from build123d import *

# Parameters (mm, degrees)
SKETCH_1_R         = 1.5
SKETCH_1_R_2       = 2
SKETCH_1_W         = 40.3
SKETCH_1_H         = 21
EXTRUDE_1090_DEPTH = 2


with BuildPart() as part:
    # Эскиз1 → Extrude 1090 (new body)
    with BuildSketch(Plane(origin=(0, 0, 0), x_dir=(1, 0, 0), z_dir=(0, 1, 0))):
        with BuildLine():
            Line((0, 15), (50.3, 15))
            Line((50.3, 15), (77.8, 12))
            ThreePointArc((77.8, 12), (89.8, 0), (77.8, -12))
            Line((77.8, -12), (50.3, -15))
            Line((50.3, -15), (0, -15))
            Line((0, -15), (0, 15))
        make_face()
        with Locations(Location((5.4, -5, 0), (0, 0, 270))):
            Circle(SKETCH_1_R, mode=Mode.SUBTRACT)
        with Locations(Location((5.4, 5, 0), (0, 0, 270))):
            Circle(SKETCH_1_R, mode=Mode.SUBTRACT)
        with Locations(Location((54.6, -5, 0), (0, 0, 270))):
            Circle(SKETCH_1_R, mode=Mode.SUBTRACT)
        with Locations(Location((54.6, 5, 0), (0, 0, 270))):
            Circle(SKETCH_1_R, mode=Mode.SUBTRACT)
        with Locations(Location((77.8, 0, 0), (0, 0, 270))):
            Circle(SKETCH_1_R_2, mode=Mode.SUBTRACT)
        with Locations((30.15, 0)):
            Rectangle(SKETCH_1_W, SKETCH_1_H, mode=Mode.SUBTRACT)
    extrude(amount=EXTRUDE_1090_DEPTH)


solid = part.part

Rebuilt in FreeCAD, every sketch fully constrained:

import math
import FreeCAD as App
import Part
import Sketcher
from FreeCAD import Vector
Q = App.Units.Quantity


def add_polygon(sketch, points):
    """Adds a closed chain of lines whose ends are joined by coincident constraints."""
    first, n = sketch.GeometryCount, len(points)
    for a, b in zip(points, points[1:] + points[:1]):
        sketch.addGeometry(Part.LineSegment(App.Vector(*a, 0), App.Vector(*b, 0)), False)
    for i in range(n):
        sketch.addConstraint(Sketcher.Constraint("Coincident", first + i, 2, first + (i + 1) % n, 1))

doc = App.newDocument("Part")
body = doc.addObject("PartDesign::Body", "Body")

sketch1 = body.newObject("Sketcher::SketchObject", "Sketch")
sketch1.AttachmentSupport = (doc.getObject("XZ_Plane"), [""])
sketch1.MapMode = "FlatFace"
sketch1.addGeometry(Part.LineSegment(Vector(50.3, -15, 0), Vector(0, -15, 0)), False)
sketch1.addGeometry(Part.LineSegment(Vector(0, -15, 0), Vector(0, 15, 0)), False)
sketch1.addGeometry(Part.LineSegment(Vector(0, 15, 0), Vector(50.3, 15, 0)), False)
sketch1.addGeometry(Part.LineSegment(Vector(50.3, 15, 0), Vector(77.8, 12, 0)), False)
sketch1.addGeometry(Part.ArcOfCircle(Part.Circle(Vector(77.8, 0, 0), Vector(0, 0, 1), 12), math.radians(-90), math.radians(90)), False)
sketch1.addGeometry(Part.LineSegment(Vector(77.8, -12, 0), Vector(50.3, -15, 0)), False)
sketch1.addGeometry(Part.Circle(Vector(54.6, 5, 0), Vector(0, 0, 1), 1.5), False)
sketch1.addGeometry(Part.Circle(Vector(5.4, 5, 0), Vector(0, 0, 1), 1.5), False)
sketch1.addGeometry(Part.Circle(Vector(77.8, 0, 0), Vector(0, 0, 1), 2), False)
sketch1.addGeometry(Part.Circle(Vector(54.6, -5, 0), Vector(0, 0, 1), 1.5), False)
add_polygon(sketch1, [(10, 10.5), (10, -10.5), (50.3, -10.5), (50.3, 10.5)])
sketch1.addGeometry(Part.Circle(Vector(5.4, -5, 0), Vector(0, 0, 1), 1.5), False)
sketch1.addConstraint([
    Sketcher.Constraint("Coincident", 0, 2, 1, 1),
    Sketcher.Constraint("Coincident", 1, 2, 2, 1),
    Sketcher.Constraint("Coincident", 2, 2, 3, 1),
    Sketcher.Constraint("Coincident", 3, 2, 4, 2),
    Sketcher.Constraint("Coincident", 4, 1, 5, 1),
    Sketcher.Constraint("Coincident", 5, 2, 0, 1),
    Sketcher.Constraint("Horizontal", 0),
    Sketcher.Constraint("Vertical", 1),
    Sketcher.Constraint("Horizontal", 2),
    Sketcher.Constraint("Vertical", 10),
    Sketcher.Constraint("Horizontal", 11),
    Sketcher.Constraint("Vertical", 12),
    Sketcher.Constraint("Horizontal", 13),
    Sketcher.Constraint("Coincident", 8, 3, 4, 3),
    Sketcher.Constraint("Equal", 6, 7),
    Sketcher.Constraint("Equal", 7, 9),
    Sketcher.Constraint("Equal", 9, 14),
    Sketcher.Constraint("Symmetric", 0, 2, 1, 2, -1, 1),
    Sketcher.Constraint("Symmetric", 6, 3, 9, 3, -1),
    Sketcher.Constraint("Symmetric", 7, 3, 14, 3, -1),
    Sketcher.Constraint("Symmetric", 3, 2, 4, 1, -1),
    Sketcher.Constraint("Horizontal", 6, 3, 7, 3),
    Sketcher.Constraint("Vertical", 8, 3, 3, 2),
    Sketcher.Constraint("Vertical", 2, 2, 5, 2),
    Sketcher.Constraint("Vertical", 5, 2, 11, 2),
    Sketcher.Constraint("Diameter", 6, Q("3 mm")),
    Sketcher.Constraint("Diameter", 8, Q("4 mm")),
    Sketcher.Constraint("Radius", 4, Q("12 mm")),
    Sketcher.Constraint("DistanceY", 1, 1, 1, 2, Q("30 mm")),
    Sketcher.Constraint("DistanceY", 10, 2, 10, 1, Q("21 mm")),
    Sketcher.Constraint("DistanceX", 0, 2, 0, 1, Q("50.3 mm")),
    Sketcher.Constraint("DistanceX", 11, 1, 11, 2, Q("40.3 mm")),
    Sketcher.Constraint("DistanceY", -1, 1, 6, 3, Q("5 mm")),
    Sketcher.Constraint("DistanceX", -1, 1, 4, 3, Q("77.8 mm")),
    Sketcher.Constraint("DistanceX", -1, 1, 6, 3, Q("54.6 mm")),
    Sketcher.Constraint("DistanceX", -1, 1, 7, 3, Q("5.4 mm")),
    Sketcher.Constraint("DistanceY", 10, 2, -1, 1, Q("10.5 mm")),
])
pad1 = body.newObject("PartDesign::Pad", "Pad")
pad1.Profile = sketch1
pad1.Length = 2
pad1.Reversed = True

doc.recompute()
